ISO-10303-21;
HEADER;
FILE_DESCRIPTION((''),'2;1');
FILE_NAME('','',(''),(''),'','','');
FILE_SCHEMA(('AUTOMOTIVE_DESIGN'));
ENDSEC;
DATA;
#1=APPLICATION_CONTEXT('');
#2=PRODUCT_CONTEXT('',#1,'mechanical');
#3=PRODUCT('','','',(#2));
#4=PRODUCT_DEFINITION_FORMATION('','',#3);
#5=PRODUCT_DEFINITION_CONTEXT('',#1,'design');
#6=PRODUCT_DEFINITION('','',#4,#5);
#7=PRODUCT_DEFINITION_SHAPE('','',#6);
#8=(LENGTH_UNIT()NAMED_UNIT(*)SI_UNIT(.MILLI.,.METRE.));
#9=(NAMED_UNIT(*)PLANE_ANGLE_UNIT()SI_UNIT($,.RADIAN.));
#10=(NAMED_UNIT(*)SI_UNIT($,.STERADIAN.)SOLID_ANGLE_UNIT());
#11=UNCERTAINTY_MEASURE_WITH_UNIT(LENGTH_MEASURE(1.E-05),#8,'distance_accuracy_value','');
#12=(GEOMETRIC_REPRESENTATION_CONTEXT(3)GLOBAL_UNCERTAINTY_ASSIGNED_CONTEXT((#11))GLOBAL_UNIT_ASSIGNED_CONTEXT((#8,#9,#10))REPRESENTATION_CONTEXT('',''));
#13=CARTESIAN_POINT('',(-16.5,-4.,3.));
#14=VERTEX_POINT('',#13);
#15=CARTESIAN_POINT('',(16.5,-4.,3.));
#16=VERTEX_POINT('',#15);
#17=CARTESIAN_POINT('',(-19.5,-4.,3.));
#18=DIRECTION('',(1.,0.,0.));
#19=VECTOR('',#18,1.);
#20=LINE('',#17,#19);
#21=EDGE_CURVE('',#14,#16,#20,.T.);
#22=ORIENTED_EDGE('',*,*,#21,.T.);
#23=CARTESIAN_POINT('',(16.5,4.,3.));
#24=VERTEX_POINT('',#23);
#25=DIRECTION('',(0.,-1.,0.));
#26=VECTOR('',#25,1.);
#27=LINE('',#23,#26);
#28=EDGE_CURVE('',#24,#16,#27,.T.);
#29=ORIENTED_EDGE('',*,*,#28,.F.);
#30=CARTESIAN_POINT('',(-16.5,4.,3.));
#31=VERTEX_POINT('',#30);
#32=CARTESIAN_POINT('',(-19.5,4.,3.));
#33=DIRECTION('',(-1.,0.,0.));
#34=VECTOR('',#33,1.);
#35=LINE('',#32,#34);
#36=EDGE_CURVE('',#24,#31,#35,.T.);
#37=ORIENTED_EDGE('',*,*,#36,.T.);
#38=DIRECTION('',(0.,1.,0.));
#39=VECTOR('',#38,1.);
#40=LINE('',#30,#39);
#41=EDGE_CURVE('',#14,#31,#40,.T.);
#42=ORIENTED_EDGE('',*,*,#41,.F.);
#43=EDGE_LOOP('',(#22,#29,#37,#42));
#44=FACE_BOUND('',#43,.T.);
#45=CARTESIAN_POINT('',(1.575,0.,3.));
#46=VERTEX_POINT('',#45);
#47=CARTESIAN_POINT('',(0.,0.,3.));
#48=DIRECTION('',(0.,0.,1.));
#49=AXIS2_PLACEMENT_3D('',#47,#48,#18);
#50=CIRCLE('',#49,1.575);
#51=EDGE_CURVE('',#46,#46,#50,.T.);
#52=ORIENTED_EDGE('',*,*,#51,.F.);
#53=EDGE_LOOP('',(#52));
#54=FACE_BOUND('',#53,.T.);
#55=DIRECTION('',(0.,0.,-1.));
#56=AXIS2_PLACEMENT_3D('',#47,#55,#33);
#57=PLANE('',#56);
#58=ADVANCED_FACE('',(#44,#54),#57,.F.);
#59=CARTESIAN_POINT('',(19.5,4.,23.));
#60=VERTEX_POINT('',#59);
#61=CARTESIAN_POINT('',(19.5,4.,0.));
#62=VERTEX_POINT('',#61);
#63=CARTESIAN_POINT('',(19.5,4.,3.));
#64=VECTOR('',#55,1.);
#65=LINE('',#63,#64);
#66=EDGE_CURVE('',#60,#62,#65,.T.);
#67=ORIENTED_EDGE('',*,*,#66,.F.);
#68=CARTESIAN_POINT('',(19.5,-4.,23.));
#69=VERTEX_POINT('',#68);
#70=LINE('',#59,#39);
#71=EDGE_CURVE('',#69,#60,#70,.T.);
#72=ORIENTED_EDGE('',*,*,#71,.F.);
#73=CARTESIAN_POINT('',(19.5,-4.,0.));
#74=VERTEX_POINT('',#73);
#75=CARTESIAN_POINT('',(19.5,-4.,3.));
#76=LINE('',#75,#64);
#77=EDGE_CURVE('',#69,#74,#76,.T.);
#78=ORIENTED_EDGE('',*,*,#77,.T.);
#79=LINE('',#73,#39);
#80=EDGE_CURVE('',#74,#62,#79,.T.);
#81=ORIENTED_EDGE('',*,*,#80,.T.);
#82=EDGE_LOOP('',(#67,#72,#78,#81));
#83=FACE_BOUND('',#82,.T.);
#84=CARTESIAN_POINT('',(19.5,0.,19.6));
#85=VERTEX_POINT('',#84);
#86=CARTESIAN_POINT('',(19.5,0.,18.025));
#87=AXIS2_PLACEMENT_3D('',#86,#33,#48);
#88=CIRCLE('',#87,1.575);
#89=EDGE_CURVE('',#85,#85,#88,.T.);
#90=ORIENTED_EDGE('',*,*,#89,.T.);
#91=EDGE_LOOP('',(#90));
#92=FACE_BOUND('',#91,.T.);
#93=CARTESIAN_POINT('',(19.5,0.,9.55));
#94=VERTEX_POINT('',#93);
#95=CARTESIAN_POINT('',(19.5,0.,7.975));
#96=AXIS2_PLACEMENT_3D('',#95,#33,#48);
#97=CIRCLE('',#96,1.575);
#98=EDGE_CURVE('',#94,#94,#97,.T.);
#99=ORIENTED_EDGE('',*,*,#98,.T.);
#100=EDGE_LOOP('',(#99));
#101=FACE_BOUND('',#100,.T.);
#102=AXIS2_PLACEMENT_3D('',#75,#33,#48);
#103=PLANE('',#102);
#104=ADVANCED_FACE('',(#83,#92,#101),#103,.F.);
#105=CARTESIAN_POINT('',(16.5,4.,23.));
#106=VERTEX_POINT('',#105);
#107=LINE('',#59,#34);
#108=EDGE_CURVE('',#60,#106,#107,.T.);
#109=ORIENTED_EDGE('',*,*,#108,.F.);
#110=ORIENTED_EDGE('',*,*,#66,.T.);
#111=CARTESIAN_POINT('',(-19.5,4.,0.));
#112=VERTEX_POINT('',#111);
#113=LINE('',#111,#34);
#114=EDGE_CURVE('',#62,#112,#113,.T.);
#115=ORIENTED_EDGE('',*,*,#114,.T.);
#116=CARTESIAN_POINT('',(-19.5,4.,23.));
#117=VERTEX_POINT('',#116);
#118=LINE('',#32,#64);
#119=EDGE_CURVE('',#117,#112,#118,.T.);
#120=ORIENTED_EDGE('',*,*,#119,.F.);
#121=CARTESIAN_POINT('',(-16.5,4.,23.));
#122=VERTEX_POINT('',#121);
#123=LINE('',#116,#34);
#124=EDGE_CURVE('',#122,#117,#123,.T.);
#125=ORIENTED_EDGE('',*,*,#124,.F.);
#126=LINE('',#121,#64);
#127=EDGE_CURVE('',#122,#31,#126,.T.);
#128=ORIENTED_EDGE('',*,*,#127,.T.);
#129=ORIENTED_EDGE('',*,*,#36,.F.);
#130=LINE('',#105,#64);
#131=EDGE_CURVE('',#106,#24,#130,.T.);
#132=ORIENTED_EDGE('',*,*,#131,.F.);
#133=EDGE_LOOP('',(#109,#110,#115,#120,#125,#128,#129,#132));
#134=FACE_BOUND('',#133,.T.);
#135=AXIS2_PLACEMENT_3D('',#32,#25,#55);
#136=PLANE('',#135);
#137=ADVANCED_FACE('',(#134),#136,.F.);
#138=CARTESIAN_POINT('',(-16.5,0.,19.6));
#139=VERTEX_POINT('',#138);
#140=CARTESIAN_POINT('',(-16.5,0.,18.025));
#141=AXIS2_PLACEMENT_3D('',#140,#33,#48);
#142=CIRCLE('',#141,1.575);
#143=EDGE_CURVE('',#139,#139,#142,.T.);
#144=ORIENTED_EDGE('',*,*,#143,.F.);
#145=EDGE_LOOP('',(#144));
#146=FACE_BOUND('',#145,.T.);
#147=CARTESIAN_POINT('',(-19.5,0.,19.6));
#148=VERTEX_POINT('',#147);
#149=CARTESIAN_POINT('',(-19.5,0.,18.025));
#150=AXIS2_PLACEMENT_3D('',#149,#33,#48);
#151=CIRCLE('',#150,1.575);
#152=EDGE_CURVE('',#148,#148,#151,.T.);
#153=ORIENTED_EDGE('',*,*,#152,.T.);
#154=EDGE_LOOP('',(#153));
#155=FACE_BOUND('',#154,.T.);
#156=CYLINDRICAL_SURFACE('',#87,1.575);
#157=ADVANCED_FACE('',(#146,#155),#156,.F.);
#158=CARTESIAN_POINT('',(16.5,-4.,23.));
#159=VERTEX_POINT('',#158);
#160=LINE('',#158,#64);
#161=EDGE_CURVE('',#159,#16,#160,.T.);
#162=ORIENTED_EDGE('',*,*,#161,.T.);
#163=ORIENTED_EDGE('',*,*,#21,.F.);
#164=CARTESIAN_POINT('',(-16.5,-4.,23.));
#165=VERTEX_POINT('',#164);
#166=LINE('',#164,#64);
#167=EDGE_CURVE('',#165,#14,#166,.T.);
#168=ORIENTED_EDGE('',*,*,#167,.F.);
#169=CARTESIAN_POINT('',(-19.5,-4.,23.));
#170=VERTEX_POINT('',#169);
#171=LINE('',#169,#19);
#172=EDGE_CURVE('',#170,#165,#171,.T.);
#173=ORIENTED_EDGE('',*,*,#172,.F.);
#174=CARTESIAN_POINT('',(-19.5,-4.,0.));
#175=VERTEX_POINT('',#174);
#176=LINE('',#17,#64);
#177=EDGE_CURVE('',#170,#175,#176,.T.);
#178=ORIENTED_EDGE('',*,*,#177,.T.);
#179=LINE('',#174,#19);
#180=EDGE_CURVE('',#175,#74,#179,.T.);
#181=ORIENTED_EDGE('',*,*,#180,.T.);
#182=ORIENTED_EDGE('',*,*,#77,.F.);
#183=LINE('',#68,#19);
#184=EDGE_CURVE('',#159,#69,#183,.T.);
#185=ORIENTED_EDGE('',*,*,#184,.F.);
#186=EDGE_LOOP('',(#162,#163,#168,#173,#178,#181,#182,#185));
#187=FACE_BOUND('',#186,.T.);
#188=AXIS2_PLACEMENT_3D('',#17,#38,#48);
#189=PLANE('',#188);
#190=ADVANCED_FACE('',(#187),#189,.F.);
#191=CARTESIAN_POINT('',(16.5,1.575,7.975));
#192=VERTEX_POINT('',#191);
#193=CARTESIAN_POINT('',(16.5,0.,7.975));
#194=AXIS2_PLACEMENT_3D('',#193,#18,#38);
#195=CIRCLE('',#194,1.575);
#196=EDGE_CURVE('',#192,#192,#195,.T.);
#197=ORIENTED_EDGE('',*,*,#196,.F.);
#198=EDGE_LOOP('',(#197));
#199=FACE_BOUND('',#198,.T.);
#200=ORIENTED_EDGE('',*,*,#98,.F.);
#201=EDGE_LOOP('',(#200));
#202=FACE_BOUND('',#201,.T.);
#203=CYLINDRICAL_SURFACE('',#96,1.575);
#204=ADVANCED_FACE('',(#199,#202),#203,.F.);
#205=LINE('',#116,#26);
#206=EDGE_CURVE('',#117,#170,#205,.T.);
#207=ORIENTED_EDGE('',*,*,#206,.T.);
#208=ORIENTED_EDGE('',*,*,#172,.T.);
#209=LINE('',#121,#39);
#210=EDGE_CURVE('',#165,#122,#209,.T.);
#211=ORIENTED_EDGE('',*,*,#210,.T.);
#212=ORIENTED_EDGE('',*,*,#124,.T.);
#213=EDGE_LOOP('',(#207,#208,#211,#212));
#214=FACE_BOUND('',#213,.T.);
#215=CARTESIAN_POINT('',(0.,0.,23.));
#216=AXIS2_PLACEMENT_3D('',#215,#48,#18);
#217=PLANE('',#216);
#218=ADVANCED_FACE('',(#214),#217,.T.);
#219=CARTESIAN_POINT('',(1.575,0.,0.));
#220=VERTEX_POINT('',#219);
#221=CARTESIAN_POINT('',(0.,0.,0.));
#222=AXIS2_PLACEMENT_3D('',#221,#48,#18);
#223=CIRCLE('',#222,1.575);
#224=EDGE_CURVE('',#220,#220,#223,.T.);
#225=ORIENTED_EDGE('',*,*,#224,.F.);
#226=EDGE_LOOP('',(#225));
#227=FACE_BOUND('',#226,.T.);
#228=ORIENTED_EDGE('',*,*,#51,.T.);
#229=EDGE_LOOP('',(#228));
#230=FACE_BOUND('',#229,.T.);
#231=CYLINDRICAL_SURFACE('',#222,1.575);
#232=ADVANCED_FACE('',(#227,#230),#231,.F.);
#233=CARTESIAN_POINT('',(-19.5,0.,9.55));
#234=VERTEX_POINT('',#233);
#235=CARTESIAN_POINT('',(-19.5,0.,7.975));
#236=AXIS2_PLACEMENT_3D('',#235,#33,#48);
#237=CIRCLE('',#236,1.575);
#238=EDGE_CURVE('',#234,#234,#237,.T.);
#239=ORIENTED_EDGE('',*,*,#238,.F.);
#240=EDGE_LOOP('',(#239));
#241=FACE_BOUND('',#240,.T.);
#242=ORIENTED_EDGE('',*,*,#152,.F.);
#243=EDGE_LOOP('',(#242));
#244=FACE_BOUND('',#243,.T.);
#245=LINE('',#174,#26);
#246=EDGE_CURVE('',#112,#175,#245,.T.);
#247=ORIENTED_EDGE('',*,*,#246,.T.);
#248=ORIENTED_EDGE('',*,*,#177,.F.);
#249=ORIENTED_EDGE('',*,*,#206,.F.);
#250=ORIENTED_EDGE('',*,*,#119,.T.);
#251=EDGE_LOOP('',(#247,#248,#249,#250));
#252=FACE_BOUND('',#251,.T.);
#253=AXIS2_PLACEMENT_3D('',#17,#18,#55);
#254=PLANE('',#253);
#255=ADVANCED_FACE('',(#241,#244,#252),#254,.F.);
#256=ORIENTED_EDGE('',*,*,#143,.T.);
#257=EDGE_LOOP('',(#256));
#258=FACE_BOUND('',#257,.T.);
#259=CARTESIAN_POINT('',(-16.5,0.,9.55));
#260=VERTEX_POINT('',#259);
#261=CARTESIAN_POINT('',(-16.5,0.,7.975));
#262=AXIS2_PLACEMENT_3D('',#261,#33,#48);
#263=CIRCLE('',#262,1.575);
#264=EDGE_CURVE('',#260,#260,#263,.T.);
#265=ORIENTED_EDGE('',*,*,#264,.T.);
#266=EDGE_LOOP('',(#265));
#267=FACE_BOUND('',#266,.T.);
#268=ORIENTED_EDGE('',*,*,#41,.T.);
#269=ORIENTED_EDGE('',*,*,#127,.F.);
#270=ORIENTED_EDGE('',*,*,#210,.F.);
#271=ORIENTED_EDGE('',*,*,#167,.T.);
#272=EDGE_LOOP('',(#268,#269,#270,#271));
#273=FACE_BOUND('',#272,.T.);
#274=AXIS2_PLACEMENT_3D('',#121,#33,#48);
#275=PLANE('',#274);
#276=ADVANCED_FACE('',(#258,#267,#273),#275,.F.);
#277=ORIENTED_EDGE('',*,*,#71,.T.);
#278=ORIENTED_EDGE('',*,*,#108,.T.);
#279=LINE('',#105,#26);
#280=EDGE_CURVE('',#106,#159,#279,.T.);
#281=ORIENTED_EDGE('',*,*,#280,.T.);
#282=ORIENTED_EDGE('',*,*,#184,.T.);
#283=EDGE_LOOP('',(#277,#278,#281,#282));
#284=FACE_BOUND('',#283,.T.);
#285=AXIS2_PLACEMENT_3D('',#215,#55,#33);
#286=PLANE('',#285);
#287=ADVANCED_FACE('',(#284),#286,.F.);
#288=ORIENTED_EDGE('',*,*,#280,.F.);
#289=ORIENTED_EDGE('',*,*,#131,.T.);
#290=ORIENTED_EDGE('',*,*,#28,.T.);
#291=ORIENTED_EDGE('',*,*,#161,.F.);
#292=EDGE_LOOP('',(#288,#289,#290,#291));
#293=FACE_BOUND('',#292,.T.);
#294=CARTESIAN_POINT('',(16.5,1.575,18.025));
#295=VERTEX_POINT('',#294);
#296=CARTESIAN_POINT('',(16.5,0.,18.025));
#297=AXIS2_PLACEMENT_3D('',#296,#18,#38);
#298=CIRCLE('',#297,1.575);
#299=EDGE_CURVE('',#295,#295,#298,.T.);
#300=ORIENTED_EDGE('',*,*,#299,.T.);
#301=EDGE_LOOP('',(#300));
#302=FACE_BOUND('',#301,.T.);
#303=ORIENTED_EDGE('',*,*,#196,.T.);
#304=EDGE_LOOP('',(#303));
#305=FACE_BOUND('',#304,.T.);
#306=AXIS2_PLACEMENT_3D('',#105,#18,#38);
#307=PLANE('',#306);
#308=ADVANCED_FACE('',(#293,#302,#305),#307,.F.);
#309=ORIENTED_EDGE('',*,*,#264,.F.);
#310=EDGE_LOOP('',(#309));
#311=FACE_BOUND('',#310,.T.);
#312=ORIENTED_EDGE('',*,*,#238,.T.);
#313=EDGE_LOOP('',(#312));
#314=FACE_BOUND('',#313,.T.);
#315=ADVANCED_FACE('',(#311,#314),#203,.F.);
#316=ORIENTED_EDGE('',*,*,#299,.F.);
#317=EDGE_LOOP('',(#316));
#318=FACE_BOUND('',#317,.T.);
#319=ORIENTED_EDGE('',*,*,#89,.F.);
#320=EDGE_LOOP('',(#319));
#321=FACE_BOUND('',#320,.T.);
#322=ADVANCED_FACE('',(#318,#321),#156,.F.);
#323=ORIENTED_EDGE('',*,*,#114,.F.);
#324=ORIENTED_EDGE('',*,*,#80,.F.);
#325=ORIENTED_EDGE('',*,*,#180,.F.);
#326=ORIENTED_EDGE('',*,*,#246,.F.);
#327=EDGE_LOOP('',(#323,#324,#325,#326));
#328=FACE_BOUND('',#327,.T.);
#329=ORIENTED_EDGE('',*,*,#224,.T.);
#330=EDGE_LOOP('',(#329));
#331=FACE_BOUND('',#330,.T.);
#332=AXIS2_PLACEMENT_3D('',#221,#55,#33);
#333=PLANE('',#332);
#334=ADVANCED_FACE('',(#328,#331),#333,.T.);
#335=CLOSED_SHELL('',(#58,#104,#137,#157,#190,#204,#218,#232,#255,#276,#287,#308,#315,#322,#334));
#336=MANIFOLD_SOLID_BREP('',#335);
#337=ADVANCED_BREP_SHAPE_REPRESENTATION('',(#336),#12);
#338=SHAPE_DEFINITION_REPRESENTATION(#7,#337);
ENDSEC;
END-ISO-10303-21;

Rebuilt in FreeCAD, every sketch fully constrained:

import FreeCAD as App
import Part
import Sketcher
from FreeCAD import Vector
Q = App.Units.Quantity


def add_polygon(sketch, points):
    """Adds a closed chain of lines whose ends are joined by coincident constraints."""
    first, n = sketch.GeometryCount, len(points)
    for a, b in zip(points, points[1:] + points[:1]):
        sketch.addGeometry(Part.LineSegment(App.Vector(*a, 0), App.Vector(*b, 0)), False)
    for i in range(n):
        sketch.addConstraint(Sketcher.Constraint("Coincident", first + i, 2, first + (i + 1) % n, 1))

doc = App.newDocument("Part")
body = doc.addObject("PartDesign::Body", "Body")

# Sketch on XY plane
sketch1 = body.newObject("Sketcher::SketchObject", "Sketch")
sketch1.AttachmentSupport = (doc.getObject("XY_Plane"), [""])
sketch1.MapMode = "FlatFace"
add_polygon(sketch1, [(-20, 4), (-20, -4), (20, -4), (20, 4)])  # lines 0-3
sketch1.addConstraint([
    Sketcher.Constraint("Vertical", 0),
    Sketcher.Constraint("Horizontal", 1),
    Sketcher.Constraint("Vertical", 2),
    Sketcher.Constraint("Horizontal", 3),
    Sketcher.Constraint("Symmetric", 0, 2, 2, 2, -1, 1),
    Sketcher.Constraint("DistanceX", 1, 1, 1, 2, Q("39 mm")),
    Sketcher.Constraint("DistanceY", 0, 2, 0, 1, Q("8 mm")),
])
pad1 = body.newObject("PartDesign::Pad", "Pad")
pad1.Profile = sketch1
pad1.Length = 3

# Sketch on XY plane
sketch2 = body.newObject("Sketcher::SketchObject", "Sketch001")
sketch2.AttachmentSupport = (doc.getObject("XY_Plane"), [""])
sketch2.MapMode = "FlatFace"
sketch2.AttachmentOffset = App.Placement(Vector(0, 0, 3), App.Rotation())
add_polygon(sketch2, [(-19.5, 4), (-19.5, -4), (-16.5, -4), (-16.5, 4)])  # lines 0-3
add_polygon(sketch2, [(16.5, 4), (16.5, -4), (19.5, -4), (19.5, 4)])  # lines 4-7
sketch2.addConstraint([
    Sketcher.Constraint("Vertical", 0),
    Sketcher.Constraint("Horizontal", 1),
    Sketcher.Constraint("Vertical", 2),
    Sketcher.Constraint("Horizontal", 3),
    Sketcher.Constraint("Vertical", 4),
    Sketcher.Constraint("Horizontal", 5),
    Sketcher.Constraint("Vertical", 6),
    Sketcher.Constraint("Horizontal", 7),
    Sketcher.Constraint("Symmetric", 2, 2, 4, 2, -1, 1),
    Sketcher.Constraint("Symmetric", 0, 2, 6, 2, -1, 1),
    Sketcher.Constraint("Horizontal", 1, 2, 4, 2),
    Sketcher.Constraint("DistanceX", 1, 1, 1, 2, Q("3 mm")),
    Sketcher.Constraint("DistanceY", 0, 2, 0, 1, Q("8 mm")),
    Sketcher.Constraint("DistanceX", 1, 2, 4, 2, Q("33 mm")),
])
pad2 = body.newObject("PartDesign::Pad", "Pad001")
pad2.Profile = sketch2
pad2.Length = 20

# Sketch on YZ plane
sketch3 = body.newObject("Sketcher::SketchObject", "Sketch002")
sketch3.AttachmentSupport = (doc.getObject("YZ_Plane"), [""])
sketch3.MapMode = "FlatFace"
sketch3.AttachmentOffset = App.Placement(Vector(0, 0, -19.5), App.Rotation())
sketch3.addGeometry([
    Part.Circle(Vector(0, 18, 0), Vector(0, 0, 1), 1.6),
    Part.Circle(Vector(0, 8, 0), Vector(0, 0, 1), 1.6),
], False)
sketch3.addConstraint([
    Sketcher.Constraint("Equal", 0, 1),
    Sketcher.Constraint("PointOnObject", 0, 3, -2),
    Sketcher.Constraint("PointOnObject", 1, 3, -2),
    Sketcher.Constraint("Diameter", 0, Q("3.15 mm")),
    Sketcher.Constraint("DistanceY", 1, 3, 0, 3, Q("10.05 mm")),
    Sketcher.Constraint("DistanceY", -1, 1, 0, 3, Q("18.025 mm")),
])
pocket1 = body.newObject("PartDesign::Pocket", "Pocket")
pocket1.Profile = sketch3
pocket1.Type = "ThroughAll"
pocket1.Reversed = True

# Sketch on XY plane
sketch4 = body.newObject("Sketcher::SketchObject", "Sketch003")
sketch4.AttachmentSupport = (doc.getObject("XY_Plane"), [""])
sketch4.MapMode = "FlatFace"
sketch4.AttachmentOffset = App.Placement(Vector(0, 0, 3), App.Rotation())
sketch4.addGeometry(Part.Circle(Vector(0, 0, 0), Vector(0, 0, 1), 1.6), False)
sketch4.addConstraint([
    Sketcher.Constraint("Coincident", 0, 3, -1, 1),
    Sketcher.Constraint("Diameter", 0, Q("3.15 mm")),
])
pocket2 = body.newObject("PartDesign::Pocket", "Pocket001")
pocket2.Profile = sketch4
pocket2.Length = 3

doc.recompute()
